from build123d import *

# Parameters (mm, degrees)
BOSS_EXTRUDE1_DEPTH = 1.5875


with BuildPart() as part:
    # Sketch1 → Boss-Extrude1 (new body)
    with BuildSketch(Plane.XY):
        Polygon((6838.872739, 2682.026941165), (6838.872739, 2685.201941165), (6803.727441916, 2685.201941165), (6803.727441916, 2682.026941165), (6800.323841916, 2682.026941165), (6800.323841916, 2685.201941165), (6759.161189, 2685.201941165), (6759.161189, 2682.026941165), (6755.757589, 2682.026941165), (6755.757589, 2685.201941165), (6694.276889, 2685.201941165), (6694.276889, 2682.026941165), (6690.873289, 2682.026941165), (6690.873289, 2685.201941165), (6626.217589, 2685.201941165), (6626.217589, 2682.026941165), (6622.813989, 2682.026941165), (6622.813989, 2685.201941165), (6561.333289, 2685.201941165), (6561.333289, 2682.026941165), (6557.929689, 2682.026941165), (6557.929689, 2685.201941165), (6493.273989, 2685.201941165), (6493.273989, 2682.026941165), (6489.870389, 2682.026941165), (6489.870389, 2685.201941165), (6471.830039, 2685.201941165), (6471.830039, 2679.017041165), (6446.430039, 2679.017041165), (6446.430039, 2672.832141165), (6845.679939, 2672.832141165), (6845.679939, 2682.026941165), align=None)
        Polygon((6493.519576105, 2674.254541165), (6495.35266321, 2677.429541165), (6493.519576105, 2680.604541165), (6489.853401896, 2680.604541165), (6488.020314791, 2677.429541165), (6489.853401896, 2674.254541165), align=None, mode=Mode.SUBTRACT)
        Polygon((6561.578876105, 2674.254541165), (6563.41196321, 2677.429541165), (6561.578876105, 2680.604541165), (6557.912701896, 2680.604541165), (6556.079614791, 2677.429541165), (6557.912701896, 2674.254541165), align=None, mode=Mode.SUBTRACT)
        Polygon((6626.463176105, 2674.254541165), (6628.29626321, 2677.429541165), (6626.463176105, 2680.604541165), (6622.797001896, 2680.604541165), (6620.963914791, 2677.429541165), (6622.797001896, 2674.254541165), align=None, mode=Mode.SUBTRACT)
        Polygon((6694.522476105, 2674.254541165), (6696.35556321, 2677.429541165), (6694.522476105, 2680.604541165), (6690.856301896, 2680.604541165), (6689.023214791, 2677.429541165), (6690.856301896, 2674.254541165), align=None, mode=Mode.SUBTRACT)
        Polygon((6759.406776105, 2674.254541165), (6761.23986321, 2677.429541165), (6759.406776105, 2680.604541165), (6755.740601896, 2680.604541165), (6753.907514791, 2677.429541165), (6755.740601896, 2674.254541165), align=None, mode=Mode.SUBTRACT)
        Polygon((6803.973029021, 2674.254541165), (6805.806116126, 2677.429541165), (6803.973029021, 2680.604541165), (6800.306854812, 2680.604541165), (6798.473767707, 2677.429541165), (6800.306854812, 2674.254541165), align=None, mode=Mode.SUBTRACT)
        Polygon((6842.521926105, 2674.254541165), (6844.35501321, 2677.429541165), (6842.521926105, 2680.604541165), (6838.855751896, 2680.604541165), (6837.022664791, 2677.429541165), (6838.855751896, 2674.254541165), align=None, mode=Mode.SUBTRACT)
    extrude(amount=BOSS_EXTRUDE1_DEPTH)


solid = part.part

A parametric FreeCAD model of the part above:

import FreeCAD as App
import Part
import Sketcher
from FreeCAD import Vector
Q = App.Units.Quantity

doc = App.newDocument("Part")
params = doc.addObject("Spreadsheet::Sheet", "Params")
for row, (alias, value) in enumerate([
    ("sketch1_width", "1 in"),
    ("sketch1_width2", "0.134 in"),
    ("sketch1_width3", "0.268 in"),
    ("sketch1_height", "0.125 in"),
    ("sketch1_height2", "0.362 in"),
    ("pad1_length", "0.0625 in"),
], start=1):
    params.set(f"A{row}", alias)
    params.set(f"B{row}", "=" + value)
    params.setAlias(f"B{row}", alias)

body = doc.addObject("PartDesign::Body", "Body")

sketch1 = doc.addObject("Sketcher::SketchObject", "Sketch")
body.addObject(sketch1)
sketch1.AttachmentSupport = (doc.XY_Plane, [""])
sketch1.MapMode = "FlatFace"
sketch1.addGeometry([
    Part.LineSegment(Vector(6838.9, 2682, 0), Vector(6838.9, 2685.2, 0)),
    Part.LineSegment(Vector(6838.9, 2685.2, 0), Vector(6803.7, 2685.2, 0)),
    Part.LineSegment(Vector(6803.7, 2685.2, 0), Vector(6803.7, 2682, 0)),
    Part.LineSegment(Vector(6803.7, 2682, 0), Vector(6800.3, 2682, 0)),
    Part.LineSegment(Vector(6800.3, 2682, 0), Vector(6800.3, 2685.2, 0)),
    Part.LineSegment(Vector(6800.3, 2685.2, 0), Vector(6759.2, 2685.2, 0)),
    Part.LineSegment(Vector(6759.2, 2685.2, 0), Vector(6759.2, 2682, 0)),
    Part.LineSegment(Vector(6759.2, 2682, 0), Vector(6755.8, 2682, 0)),
    Part.LineSegment(Vector(6755.8, 2682, 0), Vector(6755.8, 2685.2, 0)),
    Part.LineSegment(Vector(6755.8, 2685.2, 0), Vector(6694.3, 2685.2, 0)),
    Part.LineSegment(Vector(6694.3, 2685.2, 0), Vector(6694.3, 2682, 0)),
    Part.LineSegment(Vector(6694.3, 2682, 0), Vector(6690.9, 2682, 0)),
    Part.LineSegment(Vector(6690.9, 2682, 0), Vector(6690.9, 2685.2, 0)),
    Part.LineSegment(Vector(6690.9, 2685.2, 0), Vector(6626.2, 2685.2, 0)),
    Part.LineSegment(Vector(6626.2, 2685.2, 0), Vector(6626.2, 2682, 0)),
    Part.LineSegment(Vector(6626.2, 2682, 0), Vector(6622.8, 2682, 0)),
    Part.LineSegment(Vector(6622.8, 2682, 0), Vector(6622.8, 2685.2, 0)),
    Part.LineSegment(Vector(6622.8, 2685.2, 0), Vector(6561.3, 2685.2, 0)),
    Part.LineSegment(Vector(6561.3, 2685.2, 0), Vector(6561.3, 2682, 0)),
    Part.LineSegment(Vector(6561.3, 2682, 0), Vector(6557.9, 2682, 0)),
    Part.LineSegment(Vector(6557.9, 2682, 0), Vector(6557.9, 2685.2, 0)),
    Part.LineSegment(Vector(6557.9, 2685.2, 0), Vector(6493.3, 2685.2, 0)),
    Part.LineSegment(Vector(6493.3, 2685.2, 0), Vector(6493.3, 2682, 0)),
    Part.LineSegment(Vector(6493.3, 2682, 0), Vector(6489.9, 2682, 0)),
    Part.LineSegment(Vector(6489.9, 2682, 0), Vector(6489.9, 2685.2, 0)),
    Part.LineSegment(Vector(6489.9, 2685.2, 0), Vector(6471.8, 2685.2, 0)),
    Part.LineSegment(Vector(6471.8, 2685.2, 0), Vector(6471.8, 2679, 0)),
    Part.LineSegment(Vector(6471.8, 2679, 0), Vector(6446.4, 2679, 0)),
    Part.LineSegment(Vector(6446.4, 2679, 0), Vector(6446.4, 2672.8, 0)),
    Part.LineSegment(Vector(6446.4, 2672.8, 0), Vector(6845.7, 2672.8, 0)),
    Part.LineSegment(Vector(6845.7, 2672.8, 0), Vector(6845.7, 2682, 0)),
    Part.LineSegment(Vector(6845.7, 2682, 0), Vector(6838.9, 2682, 0)),
    Part.LineSegment(Vector(6495.4, 2677.4, 0), Vector(6493.5, 2674.3, 0)),
    Part.LineSegment(Vector(6493.5, 2674.3, 0), Vector(6489.9, 2674.3, 0)),
    Part.LineSegment(Vector(6489.9, 2674.3, 0), Vector(6488, 2677.4, 0)),
    Part.LineSegment(Vector(6488, 2677.4, 0), Vector(6489.9, 2680.6, 0)),
    Part.LineSegment(Vector(6489.9, 2680.6, 0), Vector(6493.5, 2680.6, 0)),
    Part.LineSegment(Vector(6493.5, 2680.6, 0), Vector(6495.4, 2677.4, 0)),
    Part.LineSegment(Vector(6563.4, 2677.4, 0), Vector(6561.6, 2674.3, 0)),
    Part.LineSegment(Vector(6561.6, 2674.3, 0), Vector(6557.9, 2674.3, 0)),
    Part.LineSegment(Vector(6557.9, 2674.3, 0), Vector(6556.1, 2677.4, 0)),
    Part.LineSegment(Vector(6556.1, 2677.4, 0), Vector(6557.9, 2680.6, 0)),
    Part.LineSegment(Vector(6557.9, 2680.6, 0), Vector(6561.6, 2680.6, 0)),
    Part.LineSegment(Vector(6561.6, 2680.6, 0), Vector(6563.4, 2677.4, 0)),
    Part.LineSegment(Vector(6628.3, 2677.4, 0), Vector(6626.5, 2674.3, 0)),
    Part.LineSegment(Vector(6626.5, 2674.3, 0), Vector(6622.8, 2674.3, 0)),
    Part.LineSegment(Vector(6622.8, 2674.3, 0), Vector(6621, 2677.4, 0)),
    Part.LineSegment(Vector(6621, 2677.4, 0), Vector(6622.8, 2680.6, 0)),
    Part.LineSegment(Vector(6622.8, 2680.6, 0), Vector(6626.5, 2680.6, 0)),
    Part.LineSegment(Vector(6626.5, 2680.6, 0), Vector(6628.3, 2677.4, 0)),
    Part.LineSegment(Vector(6696.4, 2677.4, 0), Vector(6694.5, 2674.3, 0)),
    Part.LineSegment(Vector(6694.5, 2674.3, 0), Vector(6690.9, 2674.3, 0)),
    Part.LineSegment(Vector(6690.9, 2674.3, 0), Vector(6689, 2677.4, 0)),
    Part.LineSegment(Vector(6689, 2677.4, 0), Vector(6690.9, 2680.6, 0)),
    Part.LineSegment(Vector(6690.9, 2680.6, 0), Vector(6694.5, 2680.6, 0)),
    Part.LineSegment(Vector(6694.5, 2680.6, 0), Vector(6696.4, 2677.4, 0)),
    Part.LineSegment(Vector(6761.2, 2677.4, 0), Vector(6759.4, 2674.3, 0)),
    Part.LineSegment(Vector(6759.4, 2674.3, 0), Vector(6755.7, 2674.3, 0)),
    Part.LineSegment(Vector(6755.7, 2674.3, 0), Vector(6753.9, 2677.4, 0)),
    Part.LineSegment(Vector(6753.9, 2677.4, 0), Vector(6755.7, 2680.6, 0)),
    Part.LineSegment(Vector(6755.7, 2680.6, 0), Vector(6759.4, 2680.6, 0)),
    Part.LineSegment(Vector(6759.4, 2680.6, 0), Vector(6761.2, 2677.4, 0)),
    Part.LineSegment(Vector(6805.8, 2677.4, 0), Vector(6804, 2674.3, 0)),
    Part.LineSegment(Vector(6804, 2674.3, 0), Vector(6800.3, 2674.3, 0)),
    Part.LineSegment(Vector(6800.3, 2674.3, 0), Vector(6798.5, 2677.4, 0)),
    Part.LineSegment(Vector(6798.5, 2677.4, 0), Vector(6800.3, 2680.6, 0)),
    Part.LineSegment(Vector(6800.3, 2680.6, 0), Vector(6804, 2680.6, 0)),
    Part.LineSegment(Vector(6804, 2680.6, 0), Vector(6805.8, 2677.4, 0)),
    Part.LineSegment(Vector(6844.4, 2677.4, 0), Vector(6842.5, 2674.3, 0)),
    Part.LineSegment(Vector(6842.5, 2674.3, 0), Vector(6838.9, 2674.3, 0)),
    Part.LineSegment(Vector(6838.9, 2674.3, 0), Vector(6837, 2677.4, 0)),
    Part.LineSegment(Vector(6837, 2677.4, 0), Vector(6838.9, 2680.6, 0)),
    Part.LineSegment(Vector(6838.9, 2680.6, 0), Vector(6842.5, 2680.6, 0)),
    Part.LineSegment(Vector(6842.5, 2680.6, 0), Vector(6844.4, 2677.4, 0)),
], False)
sketch1.addConstraint([
    Sketcher.Constraint("Coincident", 0, 2, 1, 1),
    Sketcher.Constraint("Coincident", 1, 2, 2, 1),
    Sketcher.Constraint("Coincident", 2, 2, 3, 1),
    Sketcher.Constraint("Coincident", 3, 2, 4, 1),
    Sketcher.Constraint("Coincident", 4, 2, 5, 1),
    Sketcher.Constraint("Coincident", 5, 2, 6, 1),
    Sketcher.Constraint("Coincident", 6, 2, 7, 1),
    Sketcher.Constraint("Coincident", 7, 2, 8, 1),
    Sketcher.Constraint("Coincident", 8, 2, 9, 1),
    Sketcher.Constraint("Coincident", 9, 2, 10, 1),
    Sketcher.Constraint("Coincident", 10, 2, 11, 1),
    Sketcher.Constraint("Coincident", 11, 2, 12, 1),
    Sketcher.Constraint("Coincident", 12, 2, 13, 1),
    Sketcher.Constraint("Coincident", 13, 2, 14, 1),
    Sketcher.Constraint("Coincident", 14, 2, 15, 1),
    Sketcher.Constraint("Coincident", 15, 2, 16, 1),
    Sketcher.Constraint("Coincident", 16, 2, 17, 1),
    Sketcher.Constraint("Coincident", 17, 2, 18, 1),
    Sketcher.Constraint("Coincident", 18, 2, 19, 1),
    Sketcher.Constraint("Coincident", 19, 2, 20, 1),
    Sketcher.Constraint("Coincident", 20, 2, 21, 1),
    Sketcher.Constraint("Coincident", 21, 2, 22, 1),
    Sketcher.Constraint("Coincident", 22, 2, 23, 1),
    Sketcher.Constraint("Coincident", 23, 2, 24, 1),
    Sketcher.Constraint("Coincident", 24, 2, 25, 1),
    Sketcher.Constraint("Coincident", 25, 2, 26, 1),
    Sketcher.Constraint("Coincident", 26, 2, 27, 1),
    Sketcher.Constraint("Coincident", 27, 2, 28, 1),
    Sketcher.Constraint("Coincident", 28, 2, 29, 1),
    Sketcher.Constraint("Coincident", 29, 2, 30, 1),
    Sketcher.Constraint("Coincident", 30, 2, 31, 1),
    Sketcher.Constraint("Coincident", 31, 2, 0, 1),
    Sketcher.Constraint("Coincident", 32, 2, 33, 1),
    Sketcher.Constraint("Coincident", 33, 2, 34, 1),
    Sketcher.Constraint("Coincident", 34, 2, 35, 1),
    Sketcher.Constraint("Coincident", 35, 2, 36, 1),
    Sketcher.Constraint("Coincident", 36, 2, 37, 1),
    Sketcher.Constraint("Coincident", 37, 2, 32, 1),
    Sketcher.Constraint("Coincident", 38, 2, 39, 1),
    Sketcher.Constraint("Coincident", 39, 2, 40, 1),
    Sketcher.Constraint("Coincident", 40, 2, 41, 1),
    Sketcher.Constraint("Coincident", 41, 2, 42, 1),
    Sketcher.Constraint("Coincident", 42, 2, 43, 1),
    Sketcher.Constraint("Coincident", 43, 2, 38, 1),
    Sketcher.Constraint("Coincident", 44, 2, 45, 1),
    Sketcher.Constraint("Coincident", 45, 2, 46, 1),
    Sketcher.Constraint("Coincident", 46, 2, 47, 1),
    Sketcher.Constraint("Coincident", 47, 2, 48, 1),
    Sketcher.Constraint("Coincident", 48, 2, 49, 1),
    Sketcher.Constraint("Coincident", 49, 2, 44, 1),
    Sketcher.Constraint("Coincident", 50, 2, 51, 1),
    Sketcher.Constraint("Coincident", 51, 2, 52, 1),
    Sketcher.Constraint("Coincident", 52, 2, 53, 1),
    Sketcher.Constraint("Coincident", 53, 2, 54, 1),
    Sketcher.Constraint("Coincident", 54, 2, 55, 1),
    Sketcher.Constraint("Coincident", 55, 2, 50, 1),
    Sketcher.Constraint("Coincident", 56, 2, 57, 1),
    Sketcher.Constraint("Coincident", 57, 2, 58, 1),
    Sketcher.Constraint("Coincident", 58, 2, 59, 1),
    Sketcher.Constraint("Coincident", 59, 2, 60, 1),
    Sketcher.Constraint("Coincident", 60, 2, 61, 1),
    Sketcher.Constraint("Coincident", 61, 2, 56, 1),
    Sketcher.Constraint("Coincident", 62, 2, 63, 1),
    Sketcher.Constraint("Coincident", 63, 2, 64, 1),
    Sketcher.Constraint("Coincident", 64, 2, 65, 1),
    Sketcher.Constraint("Coincident", 65, 2, 66, 1),
    Sketcher.Constraint("Coincident", 66, 2, 67, 1),
    Sketcher.Constraint("Coincident", 67, 2, 62, 1),
    Sketcher.Constraint("Coincident", 68, 2, 69, 1),
    Sketcher.Constraint("Coincident", 69, 2, 70, 1),
    Sketcher.Constraint("Coincident", 70, 2, 71, 1),
    Sketcher.Constraint("Coincident", 71, 2, 72, 1),
    Sketcher.Constraint("Coincident", 72, 2, 73, 1),
    Sketcher.Constraint("Coincident", 73, 2, 68, 1),
    Sketcher.Constraint("Vertical", 0),
    Sketcher.Constraint("Horizontal", 1),
    Sketcher.Constraint("Vertical", 2),
    Sketcher.Constraint("Horizontal", 3),
    Sketcher.Constraint("Vertical", 4),
    Sketcher.Constraint("Horizontal", 5),
    Sketcher.Constraint("Vertical", 6),
    Sketcher.Constraint("Horizontal", 7),
    Sketcher.Constraint("Vertical", 8),
    Sketcher.Constraint("Horizontal", 9),
    Sketcher.Constraint("Vertical", 10),
    Sketcher.Constraint("Horizontal", 11),
    Sketcher.Constraint("Vertical", 12),
    Sketcher.Constraint("Horizontal", 13),
    Sketcher.Constraint("Vertical", 14),
    Sketcher.Constraint("Horizontal", 15),
    Sketcher.Constraint("Vertical", 16),
    Sketcher.Constraint("Horizontal", 17),
    Sketcher.Constraint("Vertical", 18),
    Sketcher.Constraint("Horizontal", 19),
    Sketcher.Constraint("Vertical", 20),
    Sketcher.Constraint("Horizontal", 21),
    Sketcher.Constraint("Vertical", 22),
    Sketcher.Constraint("Horizontal", 23),
    Sketcher.Constraint("Vertical", 24),
    Sketcher.Constraint("Horizontal", 25),
    Sketcher.Constraint("Vertical", 26),
    Sketcher.Constraint("Horizontal", 27),
    Sketcher.Constraint("Vertical", 28),
    Sketcher.Constraint("Horizontal", 29),
    Sketcher.Constraint("Vertical", 30),
    Sketcher.Constraint("Horizontal", 31),
    Sketcher.Constraint("Horizontal", 33),
    Sketcher.Constraint("Horizontal", 36),
    Sketcher.Constraint("Horizontal", 39),
    Sketcher.Constraint("Horizontal", 42),
    Sketcher.Constraint("Horizontal", 45),
    Sketcher.Constraint("Horizontal", 48),
    Sketcher.Constraint("Horizontal", 51),
    Sketcher.Constraint("Horizontal", 54),
    Sketcher.Constraint("Horizontal", 57),
    Sketcher.Constraint("Horizontal", 60),
    Sketcher.Constraint("Horizontal", 63),
    Sketcher.Constraint("Horizontal", 66),
    Sketcher.Constraint("Horizontal", 69),
    Sketcher.Constraint("Horizontal", 72),
    Sketcher.Constraint("Parallel", 32, 35),
    Sketcher.Constraint("Parallel", 34, 37),
    Sketcher.Constraint("Parallel", 35, 38),
    Sketcher.Constraint("Parallel", 37, 40),
    Sketcher.Constraint("Parallel", 38, 41),
    Sketcher.Constraint("Parallel", 40, 43),
    Sketcher.Constraint("Parallel", 41, 44),
    Sketcher.Constraint("Parallel", 43, 46),
    Sketcher.Constraint("Parallel", 44, 47),
    Sketcher.Constraint("Parallel", 46, 49),
    Sketcher.Constraint("Parallel", 47, 50),
    Sketcher.Constraint("Parallel", 49, 52),
    Sketcher.Constraint("Parallel", 50, 53),
    Sketcher.Constraint("Parallel", 52, 55),
    Sketcher.Constraint("Parallel", 53, 56),
    Sketcher.Constraint("Parallel", 55, 58),
    Sketcher.Constraint("Parallel", 56, 59),
    Sketcher.Constraint("Parallel", 58, 61),
    Sketcher.Constraint("Parallel", 59, 62),
    Sketcher.Constraint("Parallel", 61, 64),
    Sketcher.Constraint("Parallel", 62, 65),
    Sketcher.Constraint("Parallel", 64, 67),
    Sketcher.Constraint("Parallel", 65, 68),
    Sketcher.Constraint("Parallel", 67, 70),
    Sketcher.Constraint("Parallel", 68, 71),
    Sketcher.Constraint("Parallel", 70, 73),
    Sketcher.Constraint("Horizontal", 1, 2, 4, 2),
    Sketcher.Constraint("Horizontal", 3, 2, 6, 2),
    Sketcher.Constraint("Horizontal", 5, 2, 8, 2),
    Sketcher.Constraint("Horizontal", 7, 2, 10, 2),
    Sketcher.Constraint("Horizontal", 9, 2, 12, 2),
    Sketcher.Constraint("Horizontal", 11, 2, 14, 2),
    Sketcher.Constraint("Horizontal", 13, 2, 16, 2),
    Sketcher.Constraint("Horizontal", 15, 2, 18, 2),
    Sketcher.Constraint("Horizontal", 17, 2, 20, 2),
    Sketcher.Constraint("Horizontal", 19, 2, 22, 2),
    Sketcher.Constraint("Horizontal", 21, 2, 24, 2),
    Sketcher.Constraint("Horizontal", 23, 2, 30, 2),
    Sketcher.Constraint("Horizontal", 34, 2, 37, 2),
    Sketcher.Constraint("Horizontal", 33, 2, 38, 2),
    Sketcher.Constraint("Horizontal", 37, 2, 40, 2),
    Sketcher.Constraint("Horizontal", 36, 2, 41, 2),
    Sketcher.Constraint("Horizontal", 40, 2, 43, 2),
    Sketcher.Constraint("Horizontal", 39, 2, 44, 2),
    Sketcher.Constraint("Horizontal", 43, 2, 46, 2),
    Sketcher.Constraint("Horizontal", 42, 2, 47, 2),
    Sketcher.Constraint("Horizontal", 46, 2, 49, 2),
    Sketcher.Constraint("Horizontal", 45, 2, 50, 2),
    Sketcher.Constraint("Horizontal", 49, 2, 52, 2),
    Sketcher.Constraint("Horizontal", 48, 2, 53, 2),
    Sketcher.Constraint("Horizontal", 52, 2, 55, 2),
    Sketcher.Constraint("Horizontal", 51, 2, 56, 2),
    Sketcher.Constraint("Horizontal", 55, 2, 58, 2),
    Sketcher.Constraint("Horizontal", 54, 2, 59, 2),
    Sketcher.Constraint("Horizontal", 58, 2, 61, 2),
    Sketcher.Constraint("Horizontal", 57, 2, 62, 2),
    Sketcher.Constraint("Horizontal", 61, 2, 64, 2),
    Sketcher.Constraint("Horizontal", 60, 2, 65, 2),
    Sketcher.Constraint("Horizontal", 64, 2, 67, 2),
    Sketcher.Constraint("Horizontal", 63, 2, 68, 2),
    Sketcher.Constraint("Horizontal", 67, 2, 70, 2),
    Sketcher.Constraint("Horizontal", 66, 2, 71, 2),
    Sketcher.Constraint("Horizontal", 70, 2, 73, 2),
    Sketcher.Constraint("Vertical", 33, 2, 35, 2),
    Sketcher.Constraint("Vertical", 32, 2, 36, 2),
    Sketcher.Constraint("Equal", 3, 7),
    Sketcher.Constraint("Equal", 7, 11),
    Sketcher.Constraint("Equal", 11, 15),
    Sketcher.Constraint("Equal", 9, 17),
    Sketcher.Constraint("Equal", 15, 19),
    Sketcher.Constraint("Equal", 13, 21),
    Sketcher.Constraint("Equal", 19, 23),
    Sketcher.Constraint("Equal", 36, 39),
    Sketcher.Constraint("Equal", 42, 45),
    Sketcher.Constraint("Equal", 48, 51),
    Sketcher.Constraint("Equal", 54, 57),
    Sketcher.Constraint("Equal", 60, 63),
    Sketcher.Constraint("Equal", 66, 69),
    Sketcher.Constraint("Equal", 26, 28),
    Sketcher.Constraint("DistanceX", 27, 2, 27, 1, Q("1 in")),
    Sketcher.Constraint("Angle", 32, Q("-120 deg")),
    Sketcher.Constraint("DistanceX", 3, 2, 3, 1, Q("0.134 in")),
    Sketcher.Constraint("DistanceX", 31, 2, 31, 1, Q("0.268 in")),
    Sketcher.Constraint("DistanceY", 0, 1, 0, 2, Q("0.125 in")),
    Sketcher.Constraint("DistanceY", 30, 1, 30, 2, Q("0.362 in")),
    Sketcher.Constraint("DistanceX", 9, 2, 9, 1, Q("2.4205 in")),
    Sketcher.Constraint("DistanceX", 13, 2, 13, 1, Q("2.5455 in")),
    Sketcher.Constraint("DistanceX", 29, 1, 29, 2, Q("15.7185 in")),
    Sketcher.Constraint("DistanceX", 25, 2, 25, 1, 18.04035),
    Sketcher.Constraint("DistanceX", -1, 1, 33, 2, 6489.853402),
    Sketcher.Constraint("DistanceX", -1, 1, 39, 2, 6557.912702),
    Sketcher.Constraint("DistanceX", -1, 1, 45, 2, 6622.797002),
    Sketcher.Constraint("DistanceX", -1, 1, 51, 2, 6690.856302),
    Sketcher.Constraint("DistanceX", -1, 1, 57, 2, 6755.740602),
    Sketcher.Constraint("DistanceX", 1, 2, 1, 1, 35.145297),
    Sketcher.Constraint("DistanceX", 33, 2, 33, 1, 3.666174),
    Sketcher.Constraint("DistanceX", -1, 1, 0, 2, 6838.872739),
    Sketcher.Constraint("DistanceY", -1, 1, 0, 2, 2685.201941),
    Sketcher.Constraint("DistanceY", -1, 1, 32, 2, 2674.254541),
    Sketcher.Constraint("DistanceY", -1, 1, 34, 2, 2677.429541),
    Sketcher.Constraint("DistanceX", -1, 1, 62, 2, 6803.973029),
    Sketcher.Constraint("DistanceX", -1, 1, 69, 2, 6838.855752),
])
sketch1.setExpression("Constraints[199]", "Params.sketch1_width")
sketch1.setExpression("Constraints[201]", "Params.sketch1_width2")
sketch1.setExpression("Constraints[202]", "Params.sketch1_width3")
sketch1.setExpression("Constraints[203]", "Params.sketch1_height")
sketch1.setExpression("Constraints[204]", "Params.sketch1_height2")
pad1 = doc.addObject("PartDesign::Pad", "Pad")
body.addObject(pad1)
pad1.Profile = sketch1
pad1.setExpression("Length", "Params.pad1_length")

doc.recompute()
